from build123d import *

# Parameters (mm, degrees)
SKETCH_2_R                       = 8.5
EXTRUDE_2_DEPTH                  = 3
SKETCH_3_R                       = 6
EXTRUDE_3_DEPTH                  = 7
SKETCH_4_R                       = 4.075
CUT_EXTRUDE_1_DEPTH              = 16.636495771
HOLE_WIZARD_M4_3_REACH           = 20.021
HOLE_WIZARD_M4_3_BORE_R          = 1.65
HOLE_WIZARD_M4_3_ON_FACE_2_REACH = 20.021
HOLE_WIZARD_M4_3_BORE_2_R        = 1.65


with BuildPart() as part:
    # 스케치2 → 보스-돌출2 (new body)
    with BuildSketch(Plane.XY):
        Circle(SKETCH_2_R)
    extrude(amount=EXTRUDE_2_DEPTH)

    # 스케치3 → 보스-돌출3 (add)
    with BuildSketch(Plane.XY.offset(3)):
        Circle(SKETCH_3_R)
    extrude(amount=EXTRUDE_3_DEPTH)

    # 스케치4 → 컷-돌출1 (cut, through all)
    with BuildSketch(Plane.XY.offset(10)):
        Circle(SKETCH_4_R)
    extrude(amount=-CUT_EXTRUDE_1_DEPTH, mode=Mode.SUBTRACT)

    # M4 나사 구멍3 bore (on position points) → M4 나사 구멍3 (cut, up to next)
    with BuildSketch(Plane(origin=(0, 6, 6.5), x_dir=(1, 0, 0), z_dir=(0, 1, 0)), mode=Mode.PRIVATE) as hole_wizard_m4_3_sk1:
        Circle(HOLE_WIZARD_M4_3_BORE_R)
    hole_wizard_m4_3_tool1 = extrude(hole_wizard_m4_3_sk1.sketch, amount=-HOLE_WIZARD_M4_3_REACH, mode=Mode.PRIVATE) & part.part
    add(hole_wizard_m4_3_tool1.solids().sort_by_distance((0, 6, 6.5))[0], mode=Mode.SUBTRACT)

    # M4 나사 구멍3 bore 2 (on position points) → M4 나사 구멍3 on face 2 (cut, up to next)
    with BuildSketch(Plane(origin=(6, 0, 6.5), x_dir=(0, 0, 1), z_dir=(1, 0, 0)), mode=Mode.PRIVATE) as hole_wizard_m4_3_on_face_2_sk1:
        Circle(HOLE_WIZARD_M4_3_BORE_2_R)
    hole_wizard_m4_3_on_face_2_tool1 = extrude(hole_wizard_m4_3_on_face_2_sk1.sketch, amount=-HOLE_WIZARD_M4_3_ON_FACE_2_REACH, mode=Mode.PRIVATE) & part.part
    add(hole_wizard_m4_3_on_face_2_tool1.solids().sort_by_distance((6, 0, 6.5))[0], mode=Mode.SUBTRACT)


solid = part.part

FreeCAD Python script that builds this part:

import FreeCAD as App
import Part
import Sketcher

V = App.Vector
Q = App.Units.Quantity

doc = App.newDocument("Part")
body = doc.addObject("PartDesign::Body", "Body")

# Sketch on XY plane
sketch1 = body.newObject("Sketcher::SketchObject", "Sketch")
sketch1.AttachmentSupport = (doc.getObject("XY_Plane"), [""])
sketch1.MapMode = "FlatFace"
sketch1.addGeometry(Part.Circle(V(0, 0, 0), V(0, 0, 1), 8.5), False)
sketch1.addConstraint(Sketcher.Constraint("Coincident", 0, 3, -1, 1))
sketch1.addConstraint(Sketcher.Constraint("Diameter", 0, Q("17 mm")))
pad1 = body.newObject("PartDesign::Pad", "Pad")
pad1.Profile = sketch1
pad1.Length = 3

# Sketch on XY plane
sketch2 = body.newObject("Sketcher::SketchObject", "Sketch001")
sketch2.AttachmentSupport = (doc.getObject("XY_Plane"), [""])
sketch2.MapMode = "FlatFace"
sketch2.AttachmentOffset = App.Placement(V(0, 0, 3), App.Rotation())
sketch2.addGeometry(Part.Circle(V(0, 0, 0), V(0, 0, 1), 6), False)
sketch2.addConstraint(Sketcher.Constraint("Coincident", 0, 3, -1, 1))
sketch2.addConstraint(Sketcher.Constraint("Diameter", 0, Q("12 mm")))
pad2 = body.newObject("PartDesign::Pad", "Pad001")
pad2.Profile = sketch2
pad2.Length = 7

# Sketch on XY plane
sketch3 = body.newObject("Sketcher::SketchObject", "Sketch002")
sketch3.AttachmentSupport = (doc.getObject("XY_Plane"), [""])
sketch3.MapMode = "FlatFace"
sketch3.AttachmentOffset = App.Placement(V(0, 0, 10), App.Rotation())
sketch3.addGeometry(Part.Circle(V(0, 0, 0), V(0, 0, 1), 4.075), False)
sketch3.addConstraint(Sketcher.Constraint("Coincident", 0, 3, -1, 1))
sketch3.addConstraint(Sketcher.Constraint("Diameter", 0, Q("8.15 mm")))
pocket1 = body.newObject("PartDesign::Pocket", "Pocket")
pocket1.Profile = sketch3
pocket1.Type = "ThroughAll"

# Sketch on XZ plane
sketch4 = body.newObject("Sketcher::SketchObject", "Sketch003")
sketch4.AttachmentSupport = (doc.getObject("XZ_Plane"), [""])
sketch4.MapMode = "FlatFace"
sketch4.AttachmentOffset = App.Placement(V(0, 0, -6), App.Rotation())
sketch4.addGeometry(Part.Circle(V(0, 6.5, 0), V(0, 0, 1), 1.65), False)
sketch4.addConstraint(Sketcher.Constraint("PointOnObject", 0, 3, -2))
sketch4.addConstraint(Sketcher.Constraint("Diameter", 0, Q("3.3 mm")))
sketch4.addConstraint(Sketcher.Constraint("DistanceY", -1, 1, 0, 3, Q("6.5 mm")))
pocket2 = body.newObject("PartDesign::Pocket", "Pocket001")
pocket2.Profile = sketch4
pocket2.Type = "UpToFirst"
pocket2.Reversed = True

# Sketch on YZ plane
sketch5 = body.newObject("Sketcher::SketchObject", "Sketch004")
sketch5.AttachmentSupport = (doc.getObject("YZ_Plane"), [""])
sketch5.MapMode = "FlatFace"
sketch5.AttachmentOffset = App.Placement(V(0, 0, 6), App.Rotation())
sketch5.addGeometry(Part.Circle(V(0, 6.5, 0), V(0, 0, 1), 1.65), False)
sketch5.addConstraint(Sketcher.Constraint("PointOnObject", 0, 3, -2))
sketch5.addConstraint(Sketcher.Constraint("Diameter", 0, Q("3.3 mm")))
sketch5.addConstraint(Sketcher.Constraint("DistanceY", -1, 1, 0, 3, Q("6.5 mm")))
pocket3 = body.newObject("PartDesign::Pocket", "Pocket002")
pocket3.Profile = sketch5
pocket3.Type = "UpToFirst"

doc.recompute()
